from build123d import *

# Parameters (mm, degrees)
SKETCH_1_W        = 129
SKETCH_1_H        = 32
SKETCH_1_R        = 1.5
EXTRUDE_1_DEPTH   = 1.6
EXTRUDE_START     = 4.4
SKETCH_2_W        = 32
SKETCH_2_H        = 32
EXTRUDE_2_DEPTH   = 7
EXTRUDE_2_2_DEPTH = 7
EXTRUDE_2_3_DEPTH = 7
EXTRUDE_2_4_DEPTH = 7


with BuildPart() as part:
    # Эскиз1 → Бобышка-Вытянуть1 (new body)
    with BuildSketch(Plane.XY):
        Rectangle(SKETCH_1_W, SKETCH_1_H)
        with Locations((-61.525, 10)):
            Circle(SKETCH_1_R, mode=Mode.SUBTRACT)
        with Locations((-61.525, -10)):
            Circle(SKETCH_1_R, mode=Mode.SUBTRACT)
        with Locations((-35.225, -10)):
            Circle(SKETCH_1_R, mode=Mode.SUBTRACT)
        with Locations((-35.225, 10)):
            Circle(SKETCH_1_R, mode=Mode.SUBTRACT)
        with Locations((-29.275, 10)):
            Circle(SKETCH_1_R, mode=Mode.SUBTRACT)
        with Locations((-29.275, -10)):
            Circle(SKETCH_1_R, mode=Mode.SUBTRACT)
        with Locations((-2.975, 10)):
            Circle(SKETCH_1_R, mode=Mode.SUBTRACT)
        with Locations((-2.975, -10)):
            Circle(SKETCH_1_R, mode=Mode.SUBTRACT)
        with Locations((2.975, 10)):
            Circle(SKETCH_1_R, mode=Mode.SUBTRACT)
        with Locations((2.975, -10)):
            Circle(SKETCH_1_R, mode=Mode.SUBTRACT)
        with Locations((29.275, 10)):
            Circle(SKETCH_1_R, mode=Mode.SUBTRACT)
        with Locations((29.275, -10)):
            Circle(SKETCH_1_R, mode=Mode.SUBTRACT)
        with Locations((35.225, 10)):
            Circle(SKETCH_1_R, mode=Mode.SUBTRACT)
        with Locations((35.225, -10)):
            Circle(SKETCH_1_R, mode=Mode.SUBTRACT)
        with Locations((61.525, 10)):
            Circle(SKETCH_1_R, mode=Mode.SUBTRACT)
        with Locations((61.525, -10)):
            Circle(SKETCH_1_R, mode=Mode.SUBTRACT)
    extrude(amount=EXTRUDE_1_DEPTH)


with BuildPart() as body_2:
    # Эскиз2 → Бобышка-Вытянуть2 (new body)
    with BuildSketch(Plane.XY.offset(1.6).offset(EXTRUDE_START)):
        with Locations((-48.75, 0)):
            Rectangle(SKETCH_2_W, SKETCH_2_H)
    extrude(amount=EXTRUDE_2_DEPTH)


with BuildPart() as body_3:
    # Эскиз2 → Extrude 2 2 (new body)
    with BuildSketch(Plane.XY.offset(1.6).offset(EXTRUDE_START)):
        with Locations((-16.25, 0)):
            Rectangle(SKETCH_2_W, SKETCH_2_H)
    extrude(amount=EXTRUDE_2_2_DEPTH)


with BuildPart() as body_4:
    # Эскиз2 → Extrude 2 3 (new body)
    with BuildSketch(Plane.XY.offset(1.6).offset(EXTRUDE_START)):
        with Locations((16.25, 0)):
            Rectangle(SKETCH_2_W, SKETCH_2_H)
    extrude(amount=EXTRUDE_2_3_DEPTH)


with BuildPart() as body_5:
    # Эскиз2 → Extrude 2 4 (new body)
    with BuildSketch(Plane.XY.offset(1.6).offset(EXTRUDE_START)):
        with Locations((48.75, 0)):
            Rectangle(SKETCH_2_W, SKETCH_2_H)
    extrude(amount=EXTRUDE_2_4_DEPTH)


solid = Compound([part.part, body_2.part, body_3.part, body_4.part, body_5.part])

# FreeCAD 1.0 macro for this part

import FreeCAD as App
import Part
import Sketcher

doc = App.newDocument("Part")
body = doc.addObject("PartDesign::Body", "Body")

# Sketch on XY plane
sketch1 = body.newObject("Sketcher::SketchObject", "Sketch")
sketch1.AttachmentSupport = (doc.getObject("XY_Plane"), [""])
sketch1.MapMode = "FlatFace"
sketch1.addGeometry([
    Part.LineSegment(App.Vector(-64.5, 16, 0), App.Vector(-64.5, -16, 0)),  # 0
    Part.LineSegment(App.Vector(-64.5, -16, 0), App.Vector(64.5, -16, 0)),  # 1
    Part.LineSegment(App.Vector(64.5, -16, 0), App.Vector(64.5, 16, 0)),  # 2
    Part.LineSegment(App.Vector(64.5, 16, 0), App.Vector(-64.5, 16, 0)),  # 3
    Part.Circle(App.Vector(-61.525, -10, 0), App.Vector(0, 0, 1), 1.5),  # 4
    Part.Circle(App.Vector(-35.225, -10, 0), App.Vector(0, 0, 1), 1.5),  # 5
    Part.Circle(App.Vector(-29.275, -10, 0), App.Vector(0, 0, 1), 1.5),  # 6
    Part.Circle(App.Vector(-2.975, -10, 0), App.Vector(0, 0, 1), 1.5),  # 7
    Part.Circle(App.Vector(2.975, -10, 0), App.Vector(0, 0, 1), 1.5),  # 8
    Part.Circle(App.Vector(29.275, -10, 0), App.Vector(0, 0, 1), 1.5),  # 9
    Part.Circle(App.Vector(35.225, -10, 0), App.Vector(0, 0, 1), 1.5),  # 10
    Part.Circle(App.Vector(61.525, -10, 0), App.Vector(0, 0, 1), 1.5),  # 11
    Part.Circle(App.Vector(-61.525, 10, 0), App.Vector(0, 0, 1), 1.5),  # 12
    Part.Circle(App.Vector(-35.225, 10, 0), App.Vector(0, 0, 1), 1.5),  # 13
    Part.Circle(App.Vector(-29.275, 10, 0), App.Vector(0, 0, 1), 1.5),  # 14
    Part.Circle(App.Vector(-2.975, 10, 0), App.Vector(0, 0, 1), 1.5),  # 15
    Part.Circle(App.Vector(2.975, 10, 0), App.Vector(0, 0, 1), 1.5),  # 16
    Part.Circle(App.Vector(29.275, 10, 0), App.Vector(0, 0, 1), 1.5),  # 17
    Part.Circle(App.Vector(35.225, 10, 0), App.Vector(0, 0, 1), 1.5),  # 18
    Part.Circle(App.Vector(61.525, 10, 0), App.Vector(0, 0, 1), 1.5),  # 19
], False)
sketch1.addConstraint([
    Sketcher.Constraint("Coincident", 0, 2, 1, 1),
    Sketcher.Constraint("Coincident", 1, 2, 2, 1),
    Sketcher.Constraint("Coincident", 2, 2, 3, 1),
    Sketcher.Constraint("Coincident", 3, 2, 0, 1),
    Sketcher.Constraint("Vertical", 0),
    Sketcher.Constraint("Horizontal", 1),
    Sketcher.Constraint("Vertical", 2),
    Sketcher.Constraint("Horizontal", 3),
    Sketcher.Constraint("Equal", 4, 5),
    Sketcher.Constraint("Equal", 5, 6),
    Sketcher.Constraint("Equal", 6, 7),
    Sketcher.Constraint("Equal", 7, 8),
    Sketcher.Constraint("Equal", 8, 9),
    Sketcher.Constraint("Equal", 9, 10),
    Sketcher.Constraint("Equal", 10, 11),
    Sketcher.Constraint("Equal", 11, 12),
    Sketcher.Constraint("Equal", 12, 13),
    Sketcher.Constraint("Equal", 13, 14),
    Sketcher.Constraint("Equal", 14, 15),
    Sketcher.Constraint("Equal", 15, 16),
    Sketcher.Constraint("Equal", 16, 17),
    Sketcher.Constraint("Equal", 17, 18),
    Sketcher.Constraint("Equal", 18, 19),
    Sketcher.Constraint("Symmetric", 11, 3, 12, 3, -1, 1),
    Sketcher.Constraint("Symmetric", 10, 3, 13, 3, -1, 1),
    Sketcher.Constraint("Symmetric", 9, 3, 14, 3, -1, 1),
    Sketcher.Constraint("Symmetric", 8, 3, 15, 3, -1, 1),
    Sketcher.Constraint("Symmetric", 7, 3, 16, 3, -1, 1),
    Sketcher.Constraint("Symmetric", 6, 3, 17, 3, -1, 1),
    Sketcher.Constraint("Symmetric", 5, 3, 18, 3, -1, 1),
    Sketcher.Constraint("Symmetric", 4, 3, 19, 3, -1, 1),
    Sketcher.Constraint("Symmetric", 0, 2, 2, 2, -1, 1),
    Sketcher.Constraint("Symmetric", 7, 3, 8, 3, -2),
    Sketcher.Constraint("Symmetric", 6, 3, 9, 3, -2),
    Sketcher.Constraint("Symmetric", 5, 3, 10, 3, -2),
    Sketcher.Constraint("Symmetric", 4, 3, 11, 3, -2),
    Sketcher.Constraint("Horizontal", 4, 3, 5, 3),
    Sketcher.Constraint("Horizontal", 5, 3, 6, 3),
    Sketcher.Constraint("Horizontal", 6, 3, 7, 3),
    Sketcher.Constraint("Diameter", 4, 3.0),
    Sketcher.Constraint("DistanceX", 1, 1, 1, 2, 129.0),
    Sketcher.Constraint("DistanceY", 0, 2, 0, 1, 32.0),
    Sketcher.Constraint("DistanceY", 4, 3, -1, 1, 10.0),
    Sketcher.Constraint("DistanceX", 4, 3, 5, 3, 26.3),
    Sketcher.Constraint("DistanceX", 6, 3, 7, 3, 26.3),
    Sketcher.Constraint("DistanceX", 5, 3, 8, 3, 38.2),
    Sketcher.Constraint("DistanceX", 5, 3, 6, 3, 5.95),
])
pad1 = body.newObject("PartDesign::Pad", "Pad")
pad1.Profile = sketch1
pad1.Length = 1.6
body2 = doc.addObject("PartDesign::Body", "Body001")

# Sketch on XY plane
sketch2 = body2.newObject("Sketcher::SketchObject", "Sketch001")
sketch2.AttachmentSupport = (doc.getObject("XY_Plane001"), [""])
sketch2.MapMode = "FlatFace"
sketch2.AttachmentOffset = App.Placement(App.Vector(0, 0, 6), App.Rotation())
sketch2.addGeometry([
    Part.LineSegment(App.Vector(-64.75, 16, 0), App.Vector(-64.75, -16, 0)),
    Part.LineSegment(App.Vector(-64.75, -16, 0), App.Vector(-32.75, -16, 0)),
    Part.LineSegment(App.Vector(-32.75, -16, 0), App.Vector(-32.75, 16, 0)),
    Part.LineSegment(App.Vector(-32.75, 16, 0), App.Vector(-64.75, 16, 0)),
], False)
sketch2.addConstraint([
    Sketcher.Constraint("Coincident", 0, 2, 1, 1),
    Sketcher.Constraint("Coincident", 1, 2, 2, 1),
    Sketcher.Constraint("Coincident", 2, 2, 3, 1),
    Sketcher.Constraint("Coincident", 3, 2, 0, 1),
    Sketcher.Constraint("Vertical", 0),
    Sketcher.Constraint("Horizontal", 1),
    Sketcher.Constraint("Vertical", 2),
    Sketcher.Constraint("Horizontal", 3),
    Sketcher.Constraint("Equal", 3, 0),
    Sketcher.Constraint("DistanceX", 1, 1, 1, 2, 32.0),
    Sketcher.Constraint("DistanceY", 0, 2, -1, 1, 16.0),
    Sketcher.Constraint("DistanceX", 0, 2, -1, 1, 64.75),
])
pad2 = body2.newObject("PartDesign::Pad", "Pad001")
pad2.Profile = sketch2
pad2.Length = 7
body3 = doc.addObject("PartDesign::Body", "Body002")

# Sketch on XY plane
sketch3 = body3.newObject("Sketcher::SketchObject", "Sketch002")
sketch3.AttachmentSupport = (doc.getObject("XY_Plane002"), [""])
sketch3.MapMode = "FlatFace"
sketch3.AttachmentOffset = App.Placement(App.Vector(0, 0, 6), App.Rotation())
sketch3.addGeometry([
    Part.LineSegment(App.Vector(-32.25, 16, 0), App.Vector(-32.25, -16, 0)),
    Part.LineSegment(App.Vector(-32.25, -16, 0), App.Vector(-0.25, -16, 0)),
    Part.LineSegment(App.Vector(-0.25, -16, 0), App.Vector(-0.25, 16, 0)),
    Part.LineSegment(App.Vector(-0.25, 16, 0), App.Vector(-32.25, 16, 0)),
], False)
sketch3.addConstraint([
    Sketcher.Constraint("Coincident", 0, 2, 1, 1),
    Sketcher.Constraint("Coincident", 1, 2, 2, 1),
    Sketcher.Constraint("Coincident", 2, 2, 3, 1),
    Sketcher.Constraint("Coincident", 3, 2, 0, 1),
    Sketcher.Constraint("Vertical", 0),
    Sketcher.Constraint("Horizontal", 1),
    Sketcher.Constraint("Vertical", 2),
    Sketcher.Constraint("Horizontal", 3),
    Sketcher.Constraint("Equal", 3, 0),
    Sketcher.Constraint("DistanceX", 1, 1, 1, 2, 32.0),
    Sketcher.Constraint("DistanceY", 0, 2, -1, 1, 16.0),
    Sketcher.Constraint("DistanceX", 0, 2, -1, 1, 32.25),
])
pad3 = body3.newObject("PartDesign::Pad", "Pad002")
pad3.Profile = sketch3
pad3.Length = 7
body4 = doc.addObject("PartDesign::Body", "Body003")

# Sketch on XY plane
sketch4 = body4.newObject("Sketcher::SketchObject", "Sketch003")
sketch4.AttachmentSupport = (doc.getObject("XY_Plane003"), [""])
sketch4.MapMode = "FlatFace"
sketch4.AttachmentOffset = App.Placement(App.Vector(0, 0, 6), App.Rotation())
sketch4.addGeometry([
    Part.LineSegment(App.Vector(0.25, 16, 0), App.Vector(0.25, -16, 0)),
    Part.LineSegment(App.Vector(0.25, -16, 0), App.Vector(32.25, -16, 0)),
    Part.LineSegment(App.Vector(32.25, -16, 0), App.Vector(32.25, 16, 0)),
    Part.LineSegment(App.Vector(32.25, 16, 0), App.Vector(0.25, 16, 0)),
], False)
sketch4.addConstraint([
    Sketcher.Constraint("Coincident", 0, 2, 1, 1),
    Sketcher.Constraint("Coincident", 1, 2, 2, 1),
    Sketcher.Constraint("Coincident", 2, 2, 3, 1),
    Sketcher.Constraint("Coincident", 3, 2, 0, 1),
    Sketcher.Constraint("Vertical", 0),
    Sketcher.Constraint("Horizontal", 1),
    Sketcher.Constraint("Vertical", 2),
    Sketcher.Constraint("Horizontal", 3),
    Sketcher.Constraint("Equal", 3, 0),
    Sketcher.Constraint("DistanceX", 1, 1, 1, 2, 32.0),
    Sketcher.Constraint("DistanceY", 0, 2, -1, 1, 16.0),
    Sketcher.Constraint("DistanceX", -1, 1, 0, 2, 0.25),
])
pad4 = body4.newObject("PartDesign::Pad", "Pad003")
pad4.Profile = sketch4
pad4.Length = 7
body5 = doc.addObject("PartDesign::Body", "Body004")

# Sketch on XY plane
sketch5 = body5.newObject("Sketcher::SketchObject", "Sketch004")
sketch5.AttachmentSupport = (doc.getObject("XY_Plane004"), [""])
sketch5.MapMode = "FlatFace"
sketch5.AttachmentOffset = App.Placement(App.Vector(0, 0, 6), App.Rotation())
sketch5.addGeometry([
    Part.LineSegment(App.Vector(32.75, 16, 0), App.Vector(32.75, -16, 0)),
    Part.LineSegment(App.Vector(32.75, -16, 0), App.Vector(64.75, -16, 0)),
    Part.LineSegment(App.Vector(64.75, -16, 0), App.Vector(64.75, 16, 0)),
    Part.LineSegment(App.Vector(64.75, 16, 0), App.Vector(32.75, 16, 0)),
], False)
sketch5.addConstraint([
    Sketcher.Constraint("Coincident", 0, 2, 1, 1),
    Sketcher.Constraint("Coincident", 1, 2, 2, 1),
    Sketcher.Constraint("Coincident", 2, 2, 3, 1),
    Sketcher.Constraint("Coincident", 3, 2, 0, 1),
    Sketcher.Constraint("Vertical", 0),
    Sketcher.Constraint("Horizontal", 1),
    Sketcher.Constraint("Vertical", 2),
    Sketcher.Constraint("Horizontal", 3),
    Sketcher.Constraint("Equal", 3, 0),
    Sketcher.Constraint("DistanceX", 1, 1, 1, 2, 32.0),
    Sketcher.Constraint("DistanceY", 0, 2, -1, 1, 16.0),
    Sketcher.Constraint("DistanceX", -1, 1, 0, 2, 32.75),
])
pad5 = body5.newObject("PartDesign::Pad", "Pad004")
pad5.Profile = sketch5
pad5.Length = 7

doc.recompute()
